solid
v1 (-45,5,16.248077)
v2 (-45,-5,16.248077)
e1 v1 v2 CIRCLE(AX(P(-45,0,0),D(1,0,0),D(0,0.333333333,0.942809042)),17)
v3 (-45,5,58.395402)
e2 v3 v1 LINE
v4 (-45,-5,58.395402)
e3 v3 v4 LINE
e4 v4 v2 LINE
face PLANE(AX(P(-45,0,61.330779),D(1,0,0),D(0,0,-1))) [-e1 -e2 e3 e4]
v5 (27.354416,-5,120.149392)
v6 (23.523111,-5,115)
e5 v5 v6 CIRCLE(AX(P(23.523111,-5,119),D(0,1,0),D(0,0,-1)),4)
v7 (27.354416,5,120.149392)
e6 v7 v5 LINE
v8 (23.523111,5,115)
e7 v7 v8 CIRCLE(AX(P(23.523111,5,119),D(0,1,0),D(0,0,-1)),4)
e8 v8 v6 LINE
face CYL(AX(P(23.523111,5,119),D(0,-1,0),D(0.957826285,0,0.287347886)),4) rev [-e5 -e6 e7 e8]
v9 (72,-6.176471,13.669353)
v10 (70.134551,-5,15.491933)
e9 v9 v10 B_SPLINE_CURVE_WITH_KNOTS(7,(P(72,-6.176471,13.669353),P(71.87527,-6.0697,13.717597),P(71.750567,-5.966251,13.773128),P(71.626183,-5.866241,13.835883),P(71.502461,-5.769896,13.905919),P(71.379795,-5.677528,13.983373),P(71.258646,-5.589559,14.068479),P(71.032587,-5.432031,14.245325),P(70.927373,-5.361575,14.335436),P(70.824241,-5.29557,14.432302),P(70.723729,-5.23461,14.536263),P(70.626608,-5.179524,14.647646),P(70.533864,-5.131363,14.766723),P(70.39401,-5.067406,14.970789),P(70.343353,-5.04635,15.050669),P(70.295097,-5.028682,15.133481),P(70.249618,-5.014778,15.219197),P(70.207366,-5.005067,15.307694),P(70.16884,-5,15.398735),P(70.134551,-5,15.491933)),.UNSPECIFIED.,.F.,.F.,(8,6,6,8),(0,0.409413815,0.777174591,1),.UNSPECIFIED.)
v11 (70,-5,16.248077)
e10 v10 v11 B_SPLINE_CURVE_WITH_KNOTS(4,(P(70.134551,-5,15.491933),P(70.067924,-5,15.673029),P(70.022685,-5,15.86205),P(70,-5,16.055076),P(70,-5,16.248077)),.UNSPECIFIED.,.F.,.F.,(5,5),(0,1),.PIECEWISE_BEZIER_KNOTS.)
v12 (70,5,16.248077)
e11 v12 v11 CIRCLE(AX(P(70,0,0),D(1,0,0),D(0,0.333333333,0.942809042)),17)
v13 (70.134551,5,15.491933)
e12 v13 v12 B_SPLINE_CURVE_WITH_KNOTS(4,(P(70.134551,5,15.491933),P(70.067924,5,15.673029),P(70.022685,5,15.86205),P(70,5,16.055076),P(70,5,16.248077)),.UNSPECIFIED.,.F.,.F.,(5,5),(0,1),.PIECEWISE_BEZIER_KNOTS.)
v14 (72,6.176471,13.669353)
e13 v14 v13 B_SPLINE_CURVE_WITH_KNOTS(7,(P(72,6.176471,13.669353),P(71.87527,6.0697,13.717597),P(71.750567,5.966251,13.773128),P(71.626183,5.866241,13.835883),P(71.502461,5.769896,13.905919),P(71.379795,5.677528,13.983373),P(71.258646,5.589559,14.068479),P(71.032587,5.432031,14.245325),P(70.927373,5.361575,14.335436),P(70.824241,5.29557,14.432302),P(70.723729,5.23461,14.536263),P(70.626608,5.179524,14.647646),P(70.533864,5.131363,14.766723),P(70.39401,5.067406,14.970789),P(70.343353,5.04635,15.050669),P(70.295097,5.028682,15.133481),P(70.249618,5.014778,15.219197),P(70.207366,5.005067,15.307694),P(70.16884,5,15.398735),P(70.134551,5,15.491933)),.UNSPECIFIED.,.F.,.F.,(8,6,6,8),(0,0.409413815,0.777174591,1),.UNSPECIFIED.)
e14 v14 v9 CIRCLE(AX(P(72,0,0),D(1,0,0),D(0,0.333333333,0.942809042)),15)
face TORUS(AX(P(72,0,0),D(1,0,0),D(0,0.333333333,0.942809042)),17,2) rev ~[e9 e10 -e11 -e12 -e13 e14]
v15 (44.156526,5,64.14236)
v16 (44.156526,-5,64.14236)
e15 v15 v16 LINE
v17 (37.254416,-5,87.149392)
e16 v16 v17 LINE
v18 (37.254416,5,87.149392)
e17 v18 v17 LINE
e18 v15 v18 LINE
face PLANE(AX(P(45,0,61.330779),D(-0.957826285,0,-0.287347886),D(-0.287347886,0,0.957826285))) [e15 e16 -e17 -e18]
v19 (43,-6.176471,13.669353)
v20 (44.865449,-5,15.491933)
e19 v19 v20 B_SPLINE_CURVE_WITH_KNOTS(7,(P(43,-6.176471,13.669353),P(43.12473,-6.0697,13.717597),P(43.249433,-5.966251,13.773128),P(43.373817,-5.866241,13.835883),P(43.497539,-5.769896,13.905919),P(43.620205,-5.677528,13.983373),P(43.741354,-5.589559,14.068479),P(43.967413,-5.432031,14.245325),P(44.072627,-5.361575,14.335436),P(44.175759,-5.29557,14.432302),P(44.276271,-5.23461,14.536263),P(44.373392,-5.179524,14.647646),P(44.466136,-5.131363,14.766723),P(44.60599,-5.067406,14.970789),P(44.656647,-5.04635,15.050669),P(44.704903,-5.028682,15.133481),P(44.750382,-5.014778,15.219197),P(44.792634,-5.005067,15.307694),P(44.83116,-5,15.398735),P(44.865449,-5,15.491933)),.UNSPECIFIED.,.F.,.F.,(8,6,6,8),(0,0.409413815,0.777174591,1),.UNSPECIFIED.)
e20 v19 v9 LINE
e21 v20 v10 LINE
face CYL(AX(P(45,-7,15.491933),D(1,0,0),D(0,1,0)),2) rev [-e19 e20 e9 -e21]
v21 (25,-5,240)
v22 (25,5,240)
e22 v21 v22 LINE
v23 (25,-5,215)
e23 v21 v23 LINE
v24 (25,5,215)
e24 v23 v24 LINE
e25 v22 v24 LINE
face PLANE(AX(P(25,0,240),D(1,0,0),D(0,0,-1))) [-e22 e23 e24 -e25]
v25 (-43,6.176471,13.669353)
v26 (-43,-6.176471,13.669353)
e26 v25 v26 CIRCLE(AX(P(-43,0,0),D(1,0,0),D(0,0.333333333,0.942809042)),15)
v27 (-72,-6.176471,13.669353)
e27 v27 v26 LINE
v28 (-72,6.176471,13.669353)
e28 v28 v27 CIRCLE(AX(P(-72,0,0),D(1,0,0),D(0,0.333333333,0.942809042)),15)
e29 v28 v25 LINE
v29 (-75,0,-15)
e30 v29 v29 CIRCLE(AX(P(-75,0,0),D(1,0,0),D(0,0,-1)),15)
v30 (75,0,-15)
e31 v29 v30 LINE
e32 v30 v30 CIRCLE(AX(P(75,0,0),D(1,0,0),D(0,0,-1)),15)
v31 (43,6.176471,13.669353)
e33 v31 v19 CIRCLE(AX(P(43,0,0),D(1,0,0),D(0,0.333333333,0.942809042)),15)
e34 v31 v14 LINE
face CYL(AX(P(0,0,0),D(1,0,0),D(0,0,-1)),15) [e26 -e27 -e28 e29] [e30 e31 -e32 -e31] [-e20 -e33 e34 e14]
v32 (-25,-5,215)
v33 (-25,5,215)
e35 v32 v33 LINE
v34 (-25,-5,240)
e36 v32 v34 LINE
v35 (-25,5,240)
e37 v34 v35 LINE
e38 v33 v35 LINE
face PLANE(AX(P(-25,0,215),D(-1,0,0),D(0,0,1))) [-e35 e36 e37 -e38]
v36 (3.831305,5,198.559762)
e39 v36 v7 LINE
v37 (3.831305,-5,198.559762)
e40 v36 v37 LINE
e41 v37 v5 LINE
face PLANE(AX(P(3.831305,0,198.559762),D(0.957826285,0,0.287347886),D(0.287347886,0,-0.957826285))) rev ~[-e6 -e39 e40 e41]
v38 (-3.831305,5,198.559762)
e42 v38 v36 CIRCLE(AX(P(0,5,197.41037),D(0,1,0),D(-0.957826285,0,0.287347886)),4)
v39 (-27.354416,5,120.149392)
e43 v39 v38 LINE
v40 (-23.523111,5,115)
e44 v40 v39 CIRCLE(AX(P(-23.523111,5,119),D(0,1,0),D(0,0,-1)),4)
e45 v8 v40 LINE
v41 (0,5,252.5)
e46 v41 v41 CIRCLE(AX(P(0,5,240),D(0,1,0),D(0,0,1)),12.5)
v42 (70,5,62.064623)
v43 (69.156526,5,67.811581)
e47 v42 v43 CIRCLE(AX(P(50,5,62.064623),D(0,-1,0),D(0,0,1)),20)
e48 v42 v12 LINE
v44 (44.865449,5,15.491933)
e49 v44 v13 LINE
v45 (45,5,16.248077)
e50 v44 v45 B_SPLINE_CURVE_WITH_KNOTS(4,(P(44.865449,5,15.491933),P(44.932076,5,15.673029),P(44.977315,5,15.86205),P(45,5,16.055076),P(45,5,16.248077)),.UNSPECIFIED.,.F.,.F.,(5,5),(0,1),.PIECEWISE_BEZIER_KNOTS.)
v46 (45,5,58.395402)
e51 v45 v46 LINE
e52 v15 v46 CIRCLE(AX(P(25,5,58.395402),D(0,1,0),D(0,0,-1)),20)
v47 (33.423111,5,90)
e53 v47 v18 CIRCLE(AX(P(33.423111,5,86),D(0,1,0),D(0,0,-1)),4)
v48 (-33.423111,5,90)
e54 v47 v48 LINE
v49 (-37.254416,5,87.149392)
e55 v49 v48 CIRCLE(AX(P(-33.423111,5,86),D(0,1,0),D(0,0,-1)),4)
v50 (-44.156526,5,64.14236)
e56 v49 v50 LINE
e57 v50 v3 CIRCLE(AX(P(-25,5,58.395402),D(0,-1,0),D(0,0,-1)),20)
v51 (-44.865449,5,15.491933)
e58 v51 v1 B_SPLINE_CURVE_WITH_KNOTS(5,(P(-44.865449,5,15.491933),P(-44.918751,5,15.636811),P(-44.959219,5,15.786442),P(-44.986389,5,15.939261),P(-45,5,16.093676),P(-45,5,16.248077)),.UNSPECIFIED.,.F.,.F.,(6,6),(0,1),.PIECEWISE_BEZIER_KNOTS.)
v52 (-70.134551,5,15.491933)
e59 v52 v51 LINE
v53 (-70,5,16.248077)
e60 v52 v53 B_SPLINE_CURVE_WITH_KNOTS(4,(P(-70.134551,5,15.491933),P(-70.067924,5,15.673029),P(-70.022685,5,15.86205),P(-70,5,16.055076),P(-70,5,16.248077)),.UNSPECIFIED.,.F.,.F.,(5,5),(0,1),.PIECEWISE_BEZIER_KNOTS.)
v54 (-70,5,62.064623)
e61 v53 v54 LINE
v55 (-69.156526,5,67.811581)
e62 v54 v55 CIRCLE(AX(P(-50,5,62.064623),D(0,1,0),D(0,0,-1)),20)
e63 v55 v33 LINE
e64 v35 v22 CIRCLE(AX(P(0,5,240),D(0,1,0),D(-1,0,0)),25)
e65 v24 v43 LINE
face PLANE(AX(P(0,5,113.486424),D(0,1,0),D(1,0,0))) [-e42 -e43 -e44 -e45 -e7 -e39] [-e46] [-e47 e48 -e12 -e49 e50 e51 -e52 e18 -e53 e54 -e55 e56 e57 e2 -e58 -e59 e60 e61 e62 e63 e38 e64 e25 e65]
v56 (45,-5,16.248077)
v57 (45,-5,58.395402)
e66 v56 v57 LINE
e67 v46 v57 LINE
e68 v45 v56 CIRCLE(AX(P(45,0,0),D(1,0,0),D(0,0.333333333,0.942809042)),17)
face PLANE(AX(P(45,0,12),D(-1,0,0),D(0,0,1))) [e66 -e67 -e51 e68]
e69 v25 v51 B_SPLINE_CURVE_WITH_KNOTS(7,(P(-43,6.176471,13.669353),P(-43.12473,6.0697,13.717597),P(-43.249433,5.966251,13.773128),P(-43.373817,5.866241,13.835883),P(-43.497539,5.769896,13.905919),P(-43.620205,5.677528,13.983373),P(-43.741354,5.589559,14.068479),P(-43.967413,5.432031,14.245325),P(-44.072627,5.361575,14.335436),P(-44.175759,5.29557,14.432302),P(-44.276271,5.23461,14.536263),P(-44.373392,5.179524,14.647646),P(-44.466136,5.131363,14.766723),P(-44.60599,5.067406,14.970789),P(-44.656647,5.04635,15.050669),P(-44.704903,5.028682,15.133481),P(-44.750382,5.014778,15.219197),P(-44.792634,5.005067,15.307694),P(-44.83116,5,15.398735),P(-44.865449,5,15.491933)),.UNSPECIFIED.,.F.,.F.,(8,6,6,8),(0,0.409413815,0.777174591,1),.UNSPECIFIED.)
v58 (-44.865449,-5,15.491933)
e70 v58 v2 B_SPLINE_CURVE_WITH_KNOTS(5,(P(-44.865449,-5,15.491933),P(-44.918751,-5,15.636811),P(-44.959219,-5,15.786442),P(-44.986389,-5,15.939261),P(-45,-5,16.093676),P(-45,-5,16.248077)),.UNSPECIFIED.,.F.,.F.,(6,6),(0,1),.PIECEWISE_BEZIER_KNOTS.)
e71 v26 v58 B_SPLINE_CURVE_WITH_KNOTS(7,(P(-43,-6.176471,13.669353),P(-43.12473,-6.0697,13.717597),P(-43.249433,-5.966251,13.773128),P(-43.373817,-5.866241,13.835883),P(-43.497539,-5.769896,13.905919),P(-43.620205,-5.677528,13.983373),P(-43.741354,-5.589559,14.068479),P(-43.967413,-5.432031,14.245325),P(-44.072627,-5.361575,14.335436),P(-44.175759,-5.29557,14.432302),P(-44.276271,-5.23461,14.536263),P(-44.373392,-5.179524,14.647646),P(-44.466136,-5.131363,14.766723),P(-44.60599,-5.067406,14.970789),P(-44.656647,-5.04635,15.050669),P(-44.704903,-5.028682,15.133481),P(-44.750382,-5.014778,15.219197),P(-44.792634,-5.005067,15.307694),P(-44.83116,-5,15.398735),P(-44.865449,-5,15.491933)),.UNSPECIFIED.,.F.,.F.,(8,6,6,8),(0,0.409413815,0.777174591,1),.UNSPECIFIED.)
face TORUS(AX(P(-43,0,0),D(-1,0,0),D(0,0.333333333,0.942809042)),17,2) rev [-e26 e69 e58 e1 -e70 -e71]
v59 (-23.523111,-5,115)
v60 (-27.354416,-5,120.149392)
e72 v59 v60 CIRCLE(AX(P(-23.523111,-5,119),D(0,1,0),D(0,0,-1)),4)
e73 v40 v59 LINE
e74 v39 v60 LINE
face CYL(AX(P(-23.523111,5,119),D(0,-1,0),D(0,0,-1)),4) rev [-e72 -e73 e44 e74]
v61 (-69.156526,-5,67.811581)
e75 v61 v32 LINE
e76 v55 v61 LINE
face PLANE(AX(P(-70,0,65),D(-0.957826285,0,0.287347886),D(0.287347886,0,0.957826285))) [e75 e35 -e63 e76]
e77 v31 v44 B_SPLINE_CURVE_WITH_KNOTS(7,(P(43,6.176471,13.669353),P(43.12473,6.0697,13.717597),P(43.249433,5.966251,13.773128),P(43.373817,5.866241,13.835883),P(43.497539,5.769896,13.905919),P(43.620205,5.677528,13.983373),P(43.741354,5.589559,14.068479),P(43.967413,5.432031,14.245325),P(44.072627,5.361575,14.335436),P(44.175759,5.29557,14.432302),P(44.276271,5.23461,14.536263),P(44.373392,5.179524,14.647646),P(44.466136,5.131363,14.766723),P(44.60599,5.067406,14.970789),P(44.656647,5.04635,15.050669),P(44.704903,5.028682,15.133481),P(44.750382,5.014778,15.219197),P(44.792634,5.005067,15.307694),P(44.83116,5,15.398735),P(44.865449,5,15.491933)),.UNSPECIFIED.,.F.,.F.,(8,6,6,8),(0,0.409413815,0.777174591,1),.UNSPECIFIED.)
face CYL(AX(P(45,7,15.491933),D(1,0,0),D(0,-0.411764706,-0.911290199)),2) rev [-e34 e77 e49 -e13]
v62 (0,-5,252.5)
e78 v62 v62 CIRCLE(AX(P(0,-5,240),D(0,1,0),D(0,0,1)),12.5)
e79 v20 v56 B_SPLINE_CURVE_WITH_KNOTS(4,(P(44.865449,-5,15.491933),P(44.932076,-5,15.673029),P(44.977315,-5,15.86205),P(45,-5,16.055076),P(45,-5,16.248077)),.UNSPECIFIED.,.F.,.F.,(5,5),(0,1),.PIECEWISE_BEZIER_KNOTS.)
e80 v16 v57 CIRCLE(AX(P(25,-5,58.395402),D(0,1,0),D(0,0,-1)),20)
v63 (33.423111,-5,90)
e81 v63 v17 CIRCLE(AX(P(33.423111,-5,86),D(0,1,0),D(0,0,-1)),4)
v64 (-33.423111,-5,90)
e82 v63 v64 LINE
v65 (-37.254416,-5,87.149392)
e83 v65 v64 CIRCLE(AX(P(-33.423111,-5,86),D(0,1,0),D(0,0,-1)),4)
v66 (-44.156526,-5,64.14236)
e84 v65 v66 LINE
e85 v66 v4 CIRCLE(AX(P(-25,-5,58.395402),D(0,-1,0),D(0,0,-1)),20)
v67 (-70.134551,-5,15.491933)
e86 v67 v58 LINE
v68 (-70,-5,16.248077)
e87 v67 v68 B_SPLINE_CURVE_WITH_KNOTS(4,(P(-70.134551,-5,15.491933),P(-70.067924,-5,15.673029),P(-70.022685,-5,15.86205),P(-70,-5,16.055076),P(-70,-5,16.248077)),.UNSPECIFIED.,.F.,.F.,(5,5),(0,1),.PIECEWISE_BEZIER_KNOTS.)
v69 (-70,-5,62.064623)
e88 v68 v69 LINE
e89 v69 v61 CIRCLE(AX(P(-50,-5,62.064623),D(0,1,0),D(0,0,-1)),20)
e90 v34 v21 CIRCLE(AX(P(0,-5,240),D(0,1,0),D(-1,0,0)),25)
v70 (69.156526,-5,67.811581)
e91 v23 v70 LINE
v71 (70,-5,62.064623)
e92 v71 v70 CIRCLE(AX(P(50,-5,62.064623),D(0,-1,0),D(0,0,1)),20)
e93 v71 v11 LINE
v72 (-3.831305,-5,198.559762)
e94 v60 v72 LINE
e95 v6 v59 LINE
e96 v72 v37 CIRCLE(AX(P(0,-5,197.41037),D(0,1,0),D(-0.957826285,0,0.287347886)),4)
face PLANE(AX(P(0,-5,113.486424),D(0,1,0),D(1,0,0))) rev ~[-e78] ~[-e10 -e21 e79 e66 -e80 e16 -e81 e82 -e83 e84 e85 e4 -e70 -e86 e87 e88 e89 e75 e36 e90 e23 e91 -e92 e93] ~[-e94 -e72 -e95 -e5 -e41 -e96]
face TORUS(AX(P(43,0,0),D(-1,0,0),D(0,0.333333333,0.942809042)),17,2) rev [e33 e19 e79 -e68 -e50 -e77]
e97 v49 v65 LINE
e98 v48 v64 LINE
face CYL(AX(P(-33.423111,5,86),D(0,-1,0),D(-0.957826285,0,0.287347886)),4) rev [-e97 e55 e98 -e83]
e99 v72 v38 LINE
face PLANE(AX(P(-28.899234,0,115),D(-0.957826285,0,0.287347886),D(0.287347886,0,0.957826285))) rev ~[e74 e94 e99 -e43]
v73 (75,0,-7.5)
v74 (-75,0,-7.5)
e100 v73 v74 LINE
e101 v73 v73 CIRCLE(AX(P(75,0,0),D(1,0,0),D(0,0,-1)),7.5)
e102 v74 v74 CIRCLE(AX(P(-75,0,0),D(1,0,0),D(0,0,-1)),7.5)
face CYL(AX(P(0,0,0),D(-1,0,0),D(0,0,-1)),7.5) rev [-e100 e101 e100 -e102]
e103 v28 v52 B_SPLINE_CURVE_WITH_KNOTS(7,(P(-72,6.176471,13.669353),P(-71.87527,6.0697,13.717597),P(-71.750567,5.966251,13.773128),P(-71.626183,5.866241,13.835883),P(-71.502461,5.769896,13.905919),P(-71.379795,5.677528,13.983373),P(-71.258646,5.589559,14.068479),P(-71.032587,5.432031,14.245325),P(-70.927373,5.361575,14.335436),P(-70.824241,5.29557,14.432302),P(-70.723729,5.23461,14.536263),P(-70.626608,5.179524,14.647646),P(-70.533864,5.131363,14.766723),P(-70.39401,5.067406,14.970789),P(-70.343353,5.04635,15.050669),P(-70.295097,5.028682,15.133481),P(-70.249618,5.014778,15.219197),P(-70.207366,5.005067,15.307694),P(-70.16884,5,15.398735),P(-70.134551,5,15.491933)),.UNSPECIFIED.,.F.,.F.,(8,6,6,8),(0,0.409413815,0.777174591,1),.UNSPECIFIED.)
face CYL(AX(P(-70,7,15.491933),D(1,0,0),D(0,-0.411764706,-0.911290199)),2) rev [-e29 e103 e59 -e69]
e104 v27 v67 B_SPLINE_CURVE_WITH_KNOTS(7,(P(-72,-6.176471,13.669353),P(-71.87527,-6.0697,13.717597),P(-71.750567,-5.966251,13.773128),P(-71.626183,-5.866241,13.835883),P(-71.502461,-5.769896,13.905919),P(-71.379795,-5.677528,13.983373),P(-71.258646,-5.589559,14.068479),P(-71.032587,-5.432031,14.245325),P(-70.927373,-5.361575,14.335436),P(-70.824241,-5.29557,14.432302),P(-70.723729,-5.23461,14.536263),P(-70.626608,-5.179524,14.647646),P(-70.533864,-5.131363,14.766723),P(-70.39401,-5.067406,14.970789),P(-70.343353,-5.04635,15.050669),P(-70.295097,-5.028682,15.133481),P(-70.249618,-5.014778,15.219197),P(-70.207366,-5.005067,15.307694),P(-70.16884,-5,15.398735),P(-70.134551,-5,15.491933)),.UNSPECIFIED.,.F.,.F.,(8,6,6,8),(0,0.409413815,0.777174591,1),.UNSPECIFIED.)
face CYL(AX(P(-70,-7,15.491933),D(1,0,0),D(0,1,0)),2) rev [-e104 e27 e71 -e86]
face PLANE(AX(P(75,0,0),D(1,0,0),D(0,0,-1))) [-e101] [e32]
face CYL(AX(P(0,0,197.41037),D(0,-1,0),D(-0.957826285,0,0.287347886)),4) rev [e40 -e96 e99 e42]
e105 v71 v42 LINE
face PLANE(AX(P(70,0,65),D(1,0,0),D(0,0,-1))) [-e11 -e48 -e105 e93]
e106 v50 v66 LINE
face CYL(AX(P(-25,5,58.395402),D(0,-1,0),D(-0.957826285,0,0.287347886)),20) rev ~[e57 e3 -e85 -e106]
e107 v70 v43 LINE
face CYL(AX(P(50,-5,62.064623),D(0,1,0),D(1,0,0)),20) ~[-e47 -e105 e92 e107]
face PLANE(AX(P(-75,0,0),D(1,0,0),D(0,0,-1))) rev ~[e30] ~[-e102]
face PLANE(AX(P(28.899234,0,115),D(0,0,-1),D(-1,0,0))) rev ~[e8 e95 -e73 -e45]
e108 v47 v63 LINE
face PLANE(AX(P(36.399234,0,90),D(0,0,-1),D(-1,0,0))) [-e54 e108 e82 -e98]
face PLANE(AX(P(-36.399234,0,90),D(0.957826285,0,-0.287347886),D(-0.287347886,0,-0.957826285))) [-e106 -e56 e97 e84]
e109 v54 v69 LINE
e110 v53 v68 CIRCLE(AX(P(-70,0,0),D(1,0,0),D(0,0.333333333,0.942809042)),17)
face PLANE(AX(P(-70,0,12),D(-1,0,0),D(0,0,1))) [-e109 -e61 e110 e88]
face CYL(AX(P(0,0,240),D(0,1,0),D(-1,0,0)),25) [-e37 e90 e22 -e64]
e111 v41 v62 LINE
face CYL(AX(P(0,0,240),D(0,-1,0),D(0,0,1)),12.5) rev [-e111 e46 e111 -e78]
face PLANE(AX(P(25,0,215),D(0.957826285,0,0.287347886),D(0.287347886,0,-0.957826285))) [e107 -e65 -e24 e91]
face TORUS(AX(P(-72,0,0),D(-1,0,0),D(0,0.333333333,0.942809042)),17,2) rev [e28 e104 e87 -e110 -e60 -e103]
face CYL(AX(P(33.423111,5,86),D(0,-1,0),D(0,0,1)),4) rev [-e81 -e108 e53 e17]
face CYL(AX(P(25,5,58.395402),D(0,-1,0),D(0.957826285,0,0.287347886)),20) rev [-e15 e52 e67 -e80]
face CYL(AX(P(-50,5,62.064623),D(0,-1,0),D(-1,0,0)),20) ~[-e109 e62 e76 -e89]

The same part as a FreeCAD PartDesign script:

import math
import FreeCAD as App
import Part
import Sketcher


def edges_at(feature, points):
    """Names of the edges that pass closest to the given points."""
    edges = feature.Shape.Edges
    near = lambda p: min(range(len(edges)), key=lambda i: edges[i].distToShape(Part.Vertex(*p))[0])
    return sorted({f"Edge{near(p) + 1}" for p in points})

doc = App.newDocument("Part")
body = doc.addObject("PartDesign::Body", "Body")

# Sketch on YZ plane
sketch1 = body.newObject("Sketcher::SketchObject", "Sketch")
sketch1.AttachmentSupport = (doc.getObject("YZ_Plane"), [""])
sketch1.MapMode = "FlatFace"
sketch1.addGeometry([
    Part.Circle(App.Vector(0, 0, 0), App.Vector(0, 0, 1), 15),
    Part.Circle(App.Vector(0, 0, 0), App.Vector(0, 0, 1), 7.5),
], False)
sketch1.addConstraint([
    Sketcher.Constraint("Coincident", 0, 3, -1, 1),
    Sketcher.Constraint("Coincident", 1, 3, -1, 1),
    Sketcher.Constraint("Diameter", 0, 30.0),
    Sketcher.Constraint("Diameter", 1, 15.0),
])
pad1 = body.newObject("PartDesign::Pad", "Pad")
pad1.Profile = sketch1
pad1.Length = 150
pad1.Midplane = True

# Sketch on XZ plane
sketch2 = body.newObject("Sketcher::SketchObject", "Sketch001")
sketch2.AttachmentSupport = (doc.getObject("XZ_Plane"), [""])
sketch2.MapMode = "FlatFace"
sketch2.addGeometry([
    Part.LineSegment(App.Vector(-70, 65, 0), App.Vector(-25, 215, 0)),  # 0
    Part.LineSegment(App.Vector(-25, 215, 0), App.Vector(-25, 240, 0)),  # 1
    Part.ArcOfCircle(Part.Circle(App.Vector(0, 240, 0), App.Vector(0, 0, 1), 25), math.radians(0), math.radians(180)),  # 2
    Part.LineSegment(App.Vector(25, 240, 0), App.Vector(25, 215, 0)),  # 3
    Part.LineSegment(App.Vector(25, 215, 0), App.Vector(70, 65, 0)),  # 4
    Part.LineSegment(App.Vector(70, 65, 0), App.Vector(70, 12, 0)),  # 5
    Part.LineSegment(App.Vector(70, 12, 0), App.Vector(45, 12, 0)),  # 6
    Part.LineSegment(App.Vector(45, 12, 0), App.Vector(45, 61.330779, 0)),  # 7
    Part.LineSegment(App.Vector(45, 61.330779, 0), App.Vector(36.399234, 90, 0)),  # 8
    Part.LineSegment(App.Vector(36.399234, 90, 0), App.Vector(-36.399234, 90, 0)),  # 9
    Part.LineSegment(App.Vector(-36.399234, 90, 0), App.Vector(-45, 61.330779, 0)),  # 10
    Part.LineSegment(App.Vector(-45, 61.330779, 0), App.Vector(-45, 12, 0)),  # 11
    Part.LineSegment(App.Vector(-45, 12, 0), App.Vector(-70, 12, 0)),  # 12
    Part.LineSegment(App.Vector(-70, 12, 0), App.Vector(-70, 65, 0)),  # 13
    Part.Circle(App.Vector(0, 240, 0), App.Vector(0, 0, 1), 12.5),  # 14
    Part.LineSegment(App.Vector(28.899234, 115, 0), App.Vector(3.831305, 198.559762, 0)),  # 15
    Part.ArcOfCircle(Part.Circle(App.Vector(0, 197.41037, 0), App.Vector(0, 0, 1), 4), math.radians(16.699244), math.radians(163.300756)),  # 16
    Part.LineSegment(App.Vector(-3.831305, 198.559762, 0), App.Vector(-28.899234, 115, 0)),  # 17
    Part.LineSegment(App.Vector(-28.899234, 115, 0), App.Vector(28.899234, 115, 0)),  # 18
], False)
sketch2.addConstraint([
    Sketcher.Constraint("Coincident", 0, 2, 1, 1),
    Sketcher.Constraint("Tangent", 1, 2, 2, 2),
    Sketcher.Constraint("Tangent", 2, 1, 3, 1),
    Sketcher.Constraint("Coincident", 3, 2, 4, 1),
    Sketcher.Constraint("Coincident", 4, 2, 5, 1),
    Sketcher.Constraint("Coincident", 5, 2, 6, 1),
    Sketcher.Constraint("Coincident", 6, 2, 7, 1),
    Sketcher.Constraint("Coincident", 7, 2, 8, 1),
    Sketcher.Constraint("Coincident", 8, 2, 9, 1),
    Sketcher.Constraint("Coincident", 9, 2, 10, 1),
    Sketcher.Constraint("Coincident", 10, 2, 11, 1),
    Sketcher.Constraint("Coincident", 11, 2, 12, 1),
    Sketcher.Constraint("Coincident", 12, 2, 13, 1),
    Sketcher.Constraint("Coincident", 13, 2, 0, 1),
    Sketcher.Constraint("Tangent", 15, 2, 16, 1),
    Sketcher.Constraint("Tangent", 16, 2, 17, 1),
    Sketcher.Constraint("Coincident", 17, 2, 18, 1),
    Sketcher.Constraint("Coincident", 18, 2, 15, 1),
    Sketcher.Constraint("Vertical", 1),
    Sketcher.Constraint("Vertical", 3),
    Sketcher.Constraint("Vertical", 5),
    Sketcher.Constraint("Horizontal", 6),
    Sketcher.Constraint("Vertical", 7),
    Sketcher.Constraint("Horizontal", 9),
    Sketcher.Constraint("Vertical", 11),
    Sketcher.Constraint("Horizontal", 12),
    Sketcher.Constraint("Vertical", 13),
    Sketcher.Constraint("Horizontal", 18),
    Sketcher.Constraint("Coincident", 14, 3, 2, 3),
    Sketcher.Constraint("Symmetric", 0, 2, 3, 2, -2),
    Sketcher.Constraint("Symmetric", 7, 2, 10, 2, -2),
    Sketcher.Constraint("Symmetric", 5, 2, 12, 2, -2),
    Sketcher.Constraint("Symmetric", 15, 2, 16, 2, -2),
    Sketcher.Constraint("Parallel", 4, 8),
    Sketcher.Constraint("Parallel", 0, 10),
    Sketcher.Constraint("Parallel", 8, 15),
    Sketcher.Constraint("Parallel", 10, 17),
    Sketcher.Constraint("Equal", 12, 1),
    Sketcher.Constraint("Diameter", 14, 25.0),
    Sketcher.Constraint("Radius", 2, 25.0),
    Sketcher.Constraint("Radius", 16, 4.0),
    Sketcher.Constraint("DistanceX", 6, 2, 6, 1, 25.0),
    Sketcher.Constraint("DistanceY", 5, 2, 5, 1, 53.0),
    Sketcher.Constraint("DistanceY", -1, 1, 2, 3, 240.0),
    Sketcher.Constraint("DistanceX", -1, 1, 4, 2, 70.0),
    Sketcher.Constraint("DistanceY", -1, 1, 4, 2, 65.0),
    Sketcher.Constraint("DistanceY", -1, 1, 8, 2, 90.0),
    Sketcher.Constraint("DistanceY", -1, 1, 17, 2, 115.0),
    Sketcher.Constraint("DistanceX", 9, 2, 17, 2, 7.5),
    Sketcher.Constraint("DistanceY", 7, 1, 7, 2, 49.330779),
])
pad2 = body.newObject("PartDesign::Pad", "Pad001")
pad2.Profile = sketch2
pad2.Length = 10
pad2.Midplane = True
doc.recompute()

fillet = body.newObject("PartDesign::Fillet", "Fillet")
fillet.Base = (pad2, edges_at(pad2, [
    (36.399, 0, 90),
    (-36.399, 0, 90),
    (28.899, 0, 115),
    (-28.899, 0, 115),
]))
fillet.Radius = 4
doc.recompute()

fillet2 = body.newObject("PartDesign::Fillet", "Fillet001")
fillet2.Base = (fillet, edges_at(fillet, [
    (-70, 0, 65),
    (70, 0, 65),
    (45, 0, 61.331),
    (-45, 0, 61.331),
]))
fillet2.Radius = 20
doc.recompute()

fillet3 = body.newObject("PartDesign::Fillet", "Fillet002")
fillet3.Base = (fillet2, edges_at(fillet2, [
    (-45, 0, 15),
    (-57.5, -5, 14.142),
    (-57.5, 5, 14.142),
    (-70, 0, 15),
    (45, 0, 15),
    (57.5, -5, 14.142),
    (57.5, 5, 14.142),
    (70, 0, 15),
]))
fillet3.Radius = 2

doc.recompute()
